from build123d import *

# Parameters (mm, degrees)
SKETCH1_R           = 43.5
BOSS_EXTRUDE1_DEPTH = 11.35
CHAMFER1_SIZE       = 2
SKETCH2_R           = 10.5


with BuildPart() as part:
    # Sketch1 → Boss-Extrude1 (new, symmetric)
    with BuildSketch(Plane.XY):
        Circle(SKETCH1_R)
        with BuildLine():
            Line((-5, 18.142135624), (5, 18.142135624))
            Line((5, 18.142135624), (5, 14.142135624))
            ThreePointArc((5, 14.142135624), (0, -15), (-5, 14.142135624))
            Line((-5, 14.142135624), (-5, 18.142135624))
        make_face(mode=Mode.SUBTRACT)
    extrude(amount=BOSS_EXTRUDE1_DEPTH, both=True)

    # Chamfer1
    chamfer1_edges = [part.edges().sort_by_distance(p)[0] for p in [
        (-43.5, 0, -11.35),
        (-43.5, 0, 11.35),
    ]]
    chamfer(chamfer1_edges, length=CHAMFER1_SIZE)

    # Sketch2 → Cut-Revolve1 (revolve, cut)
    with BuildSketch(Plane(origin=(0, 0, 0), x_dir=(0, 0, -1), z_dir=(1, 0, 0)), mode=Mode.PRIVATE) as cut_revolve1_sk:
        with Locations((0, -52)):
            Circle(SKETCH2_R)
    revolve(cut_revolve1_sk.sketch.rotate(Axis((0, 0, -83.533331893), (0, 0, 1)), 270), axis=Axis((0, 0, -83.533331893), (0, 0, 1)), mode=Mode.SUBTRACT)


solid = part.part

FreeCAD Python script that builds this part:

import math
import FreeCAD as App
import Part
import Sketcher


def edges_at(feature, points):
    """Names of the edges that pass closest to the given points."""
    edges = feature.Shape.Edges
    near = lambda p: min(range(len(edges)), key=lambda i: edges[i].distToShape(Part.Vertex(*p))[0])
    return sorted({f"Edge{near(p) + 1}" for p in points})

doc = App.newDocument("Part")
body = doc.addObject("PartDesign::Body", "Body")

sketch1 = body.newObject("Sketcher::SketchObject", "Sketch")
sketch1.AttachmentSupport = (doc.getObject("XY_Plane"), [""])
sketch1.MapMode = "FlatFace"
sketch1.addGeometry(Part.Circle(App.Vector(0, 0, 0), App.Vector(0, 0, 1), 43.5), False)
sketch1.addGeometry(Part.LineSegment(App.Vector(-5, 14.1, 0), App.Vector(-5, 18.1, 0)), False)
sketch1.addGeometry(Part.LineSegment(App.Vector(-5, 18.1, 0), App.Vector(5, 18.1, 0)), False)
sketch1.addGeometry(Part.LineSegment(App.Vector(5, 18.1, 0), App.Vector(5, 14.1, 0)), False)
sketch1.addGeometry(Part.ArcOfCircle(Part.Circle(App.Vector(0, 0, 0), App.Vector(0, 0, 1), 15), math.radians(109), math.radians(431)), False)
sketch1.addConstraint(Sketcher.Constraint("Coincident", 1, 2, 2, 1))
sketch1.addConstraint(Sketcher.Constraint("Coincident", 2, 2, 3, 1))
sketch1.addConstraint(Sketcher.Constraint("Coincident", 3, 2, 4, 2))
sketch1.addConstraint(Sketcher.Constraint("Coincident", 4, 1, 1, 1))
sketch1.addConstraint(Sketcher.Constraint("Vertical", 1))
sketch1.addConstraint(Sketcher.Constraint("Horizontal", 2))
sketch1.addConstraint(Sketcher.Constraint("Vertical", 3))
sketch1.addConstraint(Sketcher.Constraint("Coincident", 0, 3, -1, 1))
sketch1.addConstraint(Sketcher.Constraint("Coincident", 4, 3, -1, 1))
sketch1.addConstraint(Sketcher.Constraint("Horizontal", 3, 2, 4, 1))
sketch1.addConstraint(Sketcher.Constraint("Diameter", 0, 87.0))
sketch1.addConstraint(Sketcher.Constraint("Radius", 4, 15.0))
sketch1.addConstraint(Sketcher.Constraint("DistanceX", 2, 1, 2, 2, 10.0))
sketch1.addConstraint(Sketcher.Constraint("DistanceY", 1, 1, 1, 2, 4.0))
pad1 = body.newObject("PartDesign::Pad", "Pad")
pad1.Profile = sketch1
pad1.Length = 22.7
pad1.Midplane = True
doc.recompute()

chamfer = body.newObject("PartDesign::Chamfer", "Chamfer")
chamfer.Base = (pad1, edges_at(pad1, [(-43.5, 0, -11.35), (-43.5, 0, 11.35)]))
chamfer.Size = 2

sketch2 = body.newObject("Sketcher::SketchObject", "Sketch001")
sketch2.AttachmentSupport = (doc.getObject("YZ_Plane"), [""])
sketch2.MapMode = "FlatFace"
sketch2.addGeometry(Part.Circle(App.Vector(-52, 0, 0), App.Vector(0, 0, 1), 10), False)
sketch2.addConstraint(Sketcher.Constraint("PointOnObject", 0, 3, -1))
sketch2.addConstraint(Sketcher.Constraint("Diameter", 0, 21.0))
sketch2.addConstraint(Sketcher.Constraint("DistanceX", 0, 3, -1, 1, 52.0))
groove = body.newObject("PartDesign::Groove", "Groove")
groove.Profile = sketch2
groove.ReferenceAxis = (sketch2, ["V_Axis"])
groove.Angle = 360

doc.recompute()
